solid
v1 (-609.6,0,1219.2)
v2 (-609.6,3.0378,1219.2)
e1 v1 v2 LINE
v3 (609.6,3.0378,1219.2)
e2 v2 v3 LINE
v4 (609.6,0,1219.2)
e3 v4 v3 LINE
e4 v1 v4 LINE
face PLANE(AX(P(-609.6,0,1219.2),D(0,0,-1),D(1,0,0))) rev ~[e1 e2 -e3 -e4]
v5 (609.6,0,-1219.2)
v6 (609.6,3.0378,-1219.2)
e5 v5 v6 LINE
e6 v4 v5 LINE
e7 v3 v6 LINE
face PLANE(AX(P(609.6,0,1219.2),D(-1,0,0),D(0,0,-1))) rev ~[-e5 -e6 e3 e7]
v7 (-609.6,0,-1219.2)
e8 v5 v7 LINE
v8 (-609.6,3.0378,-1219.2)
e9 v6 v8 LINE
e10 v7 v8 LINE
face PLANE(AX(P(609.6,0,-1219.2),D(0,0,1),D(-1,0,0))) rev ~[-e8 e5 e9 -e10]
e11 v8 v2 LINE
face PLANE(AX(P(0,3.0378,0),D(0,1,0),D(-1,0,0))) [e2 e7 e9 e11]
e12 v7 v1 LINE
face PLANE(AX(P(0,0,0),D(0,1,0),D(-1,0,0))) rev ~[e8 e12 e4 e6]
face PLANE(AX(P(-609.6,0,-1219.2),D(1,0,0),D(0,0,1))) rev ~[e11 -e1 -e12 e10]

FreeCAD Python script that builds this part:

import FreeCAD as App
import Part
import Sketcher
from FreeCAD import Vector
Q = App.Units.Quantity

doc = App.newDocument("Part")
body = doc.addObject("PartDesign::Body", "Body")

sketch1 = body.newObject("Sketcher::SketchObject", "Sketch")
sketch1.AttachmentSupport = (doc.getObject("XZ_Plane"), [""])
sketch1.MapMode = "FlatFace"
sketch1.addGeometry([
    Part.LineSegment(Vector(-609.6, -1219.2, 0), Vector(-609.6, 1219.2, 0)),
    Part.LineSegment(Vector(-609.6, 1219.2, 0), Vector(609.6, 1219.2, 0)),
    Part.LineSegment(Vector(609.6, 1219.2, 0), Vector(609.6, -1219.2, 0)),
    Part.LineSegment(Vector(609.6, -1219.2, 0), Vector(-609.6, -1219.2, 0)),
], False)
sketch1.addConstraint([
    Sketcher.Constraint("Coincident", 0, 2, 1, 1),
    Sketcher.Constraint("Coincident", 1, 2, 2, 1),
    Sketcher.Constraint("Coincident", 2, 2, 3, 1),
    Sketcher.Constraint("Coincident", 3, 2, 0, 1),
    Sketcher.Constraint("Vertical", 0),
    Sketcher.Constraint("Horizontal", 1),
    Sketcher.Constraint("Vertical", 2),
    Sketcher.Constraint("Horizontal", 3),
    Sketcher.Constraint("Symmetric", 0, 2, 2, 2, -1, 1),
    Sketcher.Constraint("DistanceX", 1, 1, 1, 2, Q("48 in")),
    Sketcher.Constraint("DistanceY", 0, 1, 0, 2, Q("96 in")),
])
pad1 = body.newObject("PartDesign::Pad", "Pad")
pad1.Profile = sketch1
pad1.Length = Q("0.1195984 in")
pad1.Reversed = True

doc.recompute()
